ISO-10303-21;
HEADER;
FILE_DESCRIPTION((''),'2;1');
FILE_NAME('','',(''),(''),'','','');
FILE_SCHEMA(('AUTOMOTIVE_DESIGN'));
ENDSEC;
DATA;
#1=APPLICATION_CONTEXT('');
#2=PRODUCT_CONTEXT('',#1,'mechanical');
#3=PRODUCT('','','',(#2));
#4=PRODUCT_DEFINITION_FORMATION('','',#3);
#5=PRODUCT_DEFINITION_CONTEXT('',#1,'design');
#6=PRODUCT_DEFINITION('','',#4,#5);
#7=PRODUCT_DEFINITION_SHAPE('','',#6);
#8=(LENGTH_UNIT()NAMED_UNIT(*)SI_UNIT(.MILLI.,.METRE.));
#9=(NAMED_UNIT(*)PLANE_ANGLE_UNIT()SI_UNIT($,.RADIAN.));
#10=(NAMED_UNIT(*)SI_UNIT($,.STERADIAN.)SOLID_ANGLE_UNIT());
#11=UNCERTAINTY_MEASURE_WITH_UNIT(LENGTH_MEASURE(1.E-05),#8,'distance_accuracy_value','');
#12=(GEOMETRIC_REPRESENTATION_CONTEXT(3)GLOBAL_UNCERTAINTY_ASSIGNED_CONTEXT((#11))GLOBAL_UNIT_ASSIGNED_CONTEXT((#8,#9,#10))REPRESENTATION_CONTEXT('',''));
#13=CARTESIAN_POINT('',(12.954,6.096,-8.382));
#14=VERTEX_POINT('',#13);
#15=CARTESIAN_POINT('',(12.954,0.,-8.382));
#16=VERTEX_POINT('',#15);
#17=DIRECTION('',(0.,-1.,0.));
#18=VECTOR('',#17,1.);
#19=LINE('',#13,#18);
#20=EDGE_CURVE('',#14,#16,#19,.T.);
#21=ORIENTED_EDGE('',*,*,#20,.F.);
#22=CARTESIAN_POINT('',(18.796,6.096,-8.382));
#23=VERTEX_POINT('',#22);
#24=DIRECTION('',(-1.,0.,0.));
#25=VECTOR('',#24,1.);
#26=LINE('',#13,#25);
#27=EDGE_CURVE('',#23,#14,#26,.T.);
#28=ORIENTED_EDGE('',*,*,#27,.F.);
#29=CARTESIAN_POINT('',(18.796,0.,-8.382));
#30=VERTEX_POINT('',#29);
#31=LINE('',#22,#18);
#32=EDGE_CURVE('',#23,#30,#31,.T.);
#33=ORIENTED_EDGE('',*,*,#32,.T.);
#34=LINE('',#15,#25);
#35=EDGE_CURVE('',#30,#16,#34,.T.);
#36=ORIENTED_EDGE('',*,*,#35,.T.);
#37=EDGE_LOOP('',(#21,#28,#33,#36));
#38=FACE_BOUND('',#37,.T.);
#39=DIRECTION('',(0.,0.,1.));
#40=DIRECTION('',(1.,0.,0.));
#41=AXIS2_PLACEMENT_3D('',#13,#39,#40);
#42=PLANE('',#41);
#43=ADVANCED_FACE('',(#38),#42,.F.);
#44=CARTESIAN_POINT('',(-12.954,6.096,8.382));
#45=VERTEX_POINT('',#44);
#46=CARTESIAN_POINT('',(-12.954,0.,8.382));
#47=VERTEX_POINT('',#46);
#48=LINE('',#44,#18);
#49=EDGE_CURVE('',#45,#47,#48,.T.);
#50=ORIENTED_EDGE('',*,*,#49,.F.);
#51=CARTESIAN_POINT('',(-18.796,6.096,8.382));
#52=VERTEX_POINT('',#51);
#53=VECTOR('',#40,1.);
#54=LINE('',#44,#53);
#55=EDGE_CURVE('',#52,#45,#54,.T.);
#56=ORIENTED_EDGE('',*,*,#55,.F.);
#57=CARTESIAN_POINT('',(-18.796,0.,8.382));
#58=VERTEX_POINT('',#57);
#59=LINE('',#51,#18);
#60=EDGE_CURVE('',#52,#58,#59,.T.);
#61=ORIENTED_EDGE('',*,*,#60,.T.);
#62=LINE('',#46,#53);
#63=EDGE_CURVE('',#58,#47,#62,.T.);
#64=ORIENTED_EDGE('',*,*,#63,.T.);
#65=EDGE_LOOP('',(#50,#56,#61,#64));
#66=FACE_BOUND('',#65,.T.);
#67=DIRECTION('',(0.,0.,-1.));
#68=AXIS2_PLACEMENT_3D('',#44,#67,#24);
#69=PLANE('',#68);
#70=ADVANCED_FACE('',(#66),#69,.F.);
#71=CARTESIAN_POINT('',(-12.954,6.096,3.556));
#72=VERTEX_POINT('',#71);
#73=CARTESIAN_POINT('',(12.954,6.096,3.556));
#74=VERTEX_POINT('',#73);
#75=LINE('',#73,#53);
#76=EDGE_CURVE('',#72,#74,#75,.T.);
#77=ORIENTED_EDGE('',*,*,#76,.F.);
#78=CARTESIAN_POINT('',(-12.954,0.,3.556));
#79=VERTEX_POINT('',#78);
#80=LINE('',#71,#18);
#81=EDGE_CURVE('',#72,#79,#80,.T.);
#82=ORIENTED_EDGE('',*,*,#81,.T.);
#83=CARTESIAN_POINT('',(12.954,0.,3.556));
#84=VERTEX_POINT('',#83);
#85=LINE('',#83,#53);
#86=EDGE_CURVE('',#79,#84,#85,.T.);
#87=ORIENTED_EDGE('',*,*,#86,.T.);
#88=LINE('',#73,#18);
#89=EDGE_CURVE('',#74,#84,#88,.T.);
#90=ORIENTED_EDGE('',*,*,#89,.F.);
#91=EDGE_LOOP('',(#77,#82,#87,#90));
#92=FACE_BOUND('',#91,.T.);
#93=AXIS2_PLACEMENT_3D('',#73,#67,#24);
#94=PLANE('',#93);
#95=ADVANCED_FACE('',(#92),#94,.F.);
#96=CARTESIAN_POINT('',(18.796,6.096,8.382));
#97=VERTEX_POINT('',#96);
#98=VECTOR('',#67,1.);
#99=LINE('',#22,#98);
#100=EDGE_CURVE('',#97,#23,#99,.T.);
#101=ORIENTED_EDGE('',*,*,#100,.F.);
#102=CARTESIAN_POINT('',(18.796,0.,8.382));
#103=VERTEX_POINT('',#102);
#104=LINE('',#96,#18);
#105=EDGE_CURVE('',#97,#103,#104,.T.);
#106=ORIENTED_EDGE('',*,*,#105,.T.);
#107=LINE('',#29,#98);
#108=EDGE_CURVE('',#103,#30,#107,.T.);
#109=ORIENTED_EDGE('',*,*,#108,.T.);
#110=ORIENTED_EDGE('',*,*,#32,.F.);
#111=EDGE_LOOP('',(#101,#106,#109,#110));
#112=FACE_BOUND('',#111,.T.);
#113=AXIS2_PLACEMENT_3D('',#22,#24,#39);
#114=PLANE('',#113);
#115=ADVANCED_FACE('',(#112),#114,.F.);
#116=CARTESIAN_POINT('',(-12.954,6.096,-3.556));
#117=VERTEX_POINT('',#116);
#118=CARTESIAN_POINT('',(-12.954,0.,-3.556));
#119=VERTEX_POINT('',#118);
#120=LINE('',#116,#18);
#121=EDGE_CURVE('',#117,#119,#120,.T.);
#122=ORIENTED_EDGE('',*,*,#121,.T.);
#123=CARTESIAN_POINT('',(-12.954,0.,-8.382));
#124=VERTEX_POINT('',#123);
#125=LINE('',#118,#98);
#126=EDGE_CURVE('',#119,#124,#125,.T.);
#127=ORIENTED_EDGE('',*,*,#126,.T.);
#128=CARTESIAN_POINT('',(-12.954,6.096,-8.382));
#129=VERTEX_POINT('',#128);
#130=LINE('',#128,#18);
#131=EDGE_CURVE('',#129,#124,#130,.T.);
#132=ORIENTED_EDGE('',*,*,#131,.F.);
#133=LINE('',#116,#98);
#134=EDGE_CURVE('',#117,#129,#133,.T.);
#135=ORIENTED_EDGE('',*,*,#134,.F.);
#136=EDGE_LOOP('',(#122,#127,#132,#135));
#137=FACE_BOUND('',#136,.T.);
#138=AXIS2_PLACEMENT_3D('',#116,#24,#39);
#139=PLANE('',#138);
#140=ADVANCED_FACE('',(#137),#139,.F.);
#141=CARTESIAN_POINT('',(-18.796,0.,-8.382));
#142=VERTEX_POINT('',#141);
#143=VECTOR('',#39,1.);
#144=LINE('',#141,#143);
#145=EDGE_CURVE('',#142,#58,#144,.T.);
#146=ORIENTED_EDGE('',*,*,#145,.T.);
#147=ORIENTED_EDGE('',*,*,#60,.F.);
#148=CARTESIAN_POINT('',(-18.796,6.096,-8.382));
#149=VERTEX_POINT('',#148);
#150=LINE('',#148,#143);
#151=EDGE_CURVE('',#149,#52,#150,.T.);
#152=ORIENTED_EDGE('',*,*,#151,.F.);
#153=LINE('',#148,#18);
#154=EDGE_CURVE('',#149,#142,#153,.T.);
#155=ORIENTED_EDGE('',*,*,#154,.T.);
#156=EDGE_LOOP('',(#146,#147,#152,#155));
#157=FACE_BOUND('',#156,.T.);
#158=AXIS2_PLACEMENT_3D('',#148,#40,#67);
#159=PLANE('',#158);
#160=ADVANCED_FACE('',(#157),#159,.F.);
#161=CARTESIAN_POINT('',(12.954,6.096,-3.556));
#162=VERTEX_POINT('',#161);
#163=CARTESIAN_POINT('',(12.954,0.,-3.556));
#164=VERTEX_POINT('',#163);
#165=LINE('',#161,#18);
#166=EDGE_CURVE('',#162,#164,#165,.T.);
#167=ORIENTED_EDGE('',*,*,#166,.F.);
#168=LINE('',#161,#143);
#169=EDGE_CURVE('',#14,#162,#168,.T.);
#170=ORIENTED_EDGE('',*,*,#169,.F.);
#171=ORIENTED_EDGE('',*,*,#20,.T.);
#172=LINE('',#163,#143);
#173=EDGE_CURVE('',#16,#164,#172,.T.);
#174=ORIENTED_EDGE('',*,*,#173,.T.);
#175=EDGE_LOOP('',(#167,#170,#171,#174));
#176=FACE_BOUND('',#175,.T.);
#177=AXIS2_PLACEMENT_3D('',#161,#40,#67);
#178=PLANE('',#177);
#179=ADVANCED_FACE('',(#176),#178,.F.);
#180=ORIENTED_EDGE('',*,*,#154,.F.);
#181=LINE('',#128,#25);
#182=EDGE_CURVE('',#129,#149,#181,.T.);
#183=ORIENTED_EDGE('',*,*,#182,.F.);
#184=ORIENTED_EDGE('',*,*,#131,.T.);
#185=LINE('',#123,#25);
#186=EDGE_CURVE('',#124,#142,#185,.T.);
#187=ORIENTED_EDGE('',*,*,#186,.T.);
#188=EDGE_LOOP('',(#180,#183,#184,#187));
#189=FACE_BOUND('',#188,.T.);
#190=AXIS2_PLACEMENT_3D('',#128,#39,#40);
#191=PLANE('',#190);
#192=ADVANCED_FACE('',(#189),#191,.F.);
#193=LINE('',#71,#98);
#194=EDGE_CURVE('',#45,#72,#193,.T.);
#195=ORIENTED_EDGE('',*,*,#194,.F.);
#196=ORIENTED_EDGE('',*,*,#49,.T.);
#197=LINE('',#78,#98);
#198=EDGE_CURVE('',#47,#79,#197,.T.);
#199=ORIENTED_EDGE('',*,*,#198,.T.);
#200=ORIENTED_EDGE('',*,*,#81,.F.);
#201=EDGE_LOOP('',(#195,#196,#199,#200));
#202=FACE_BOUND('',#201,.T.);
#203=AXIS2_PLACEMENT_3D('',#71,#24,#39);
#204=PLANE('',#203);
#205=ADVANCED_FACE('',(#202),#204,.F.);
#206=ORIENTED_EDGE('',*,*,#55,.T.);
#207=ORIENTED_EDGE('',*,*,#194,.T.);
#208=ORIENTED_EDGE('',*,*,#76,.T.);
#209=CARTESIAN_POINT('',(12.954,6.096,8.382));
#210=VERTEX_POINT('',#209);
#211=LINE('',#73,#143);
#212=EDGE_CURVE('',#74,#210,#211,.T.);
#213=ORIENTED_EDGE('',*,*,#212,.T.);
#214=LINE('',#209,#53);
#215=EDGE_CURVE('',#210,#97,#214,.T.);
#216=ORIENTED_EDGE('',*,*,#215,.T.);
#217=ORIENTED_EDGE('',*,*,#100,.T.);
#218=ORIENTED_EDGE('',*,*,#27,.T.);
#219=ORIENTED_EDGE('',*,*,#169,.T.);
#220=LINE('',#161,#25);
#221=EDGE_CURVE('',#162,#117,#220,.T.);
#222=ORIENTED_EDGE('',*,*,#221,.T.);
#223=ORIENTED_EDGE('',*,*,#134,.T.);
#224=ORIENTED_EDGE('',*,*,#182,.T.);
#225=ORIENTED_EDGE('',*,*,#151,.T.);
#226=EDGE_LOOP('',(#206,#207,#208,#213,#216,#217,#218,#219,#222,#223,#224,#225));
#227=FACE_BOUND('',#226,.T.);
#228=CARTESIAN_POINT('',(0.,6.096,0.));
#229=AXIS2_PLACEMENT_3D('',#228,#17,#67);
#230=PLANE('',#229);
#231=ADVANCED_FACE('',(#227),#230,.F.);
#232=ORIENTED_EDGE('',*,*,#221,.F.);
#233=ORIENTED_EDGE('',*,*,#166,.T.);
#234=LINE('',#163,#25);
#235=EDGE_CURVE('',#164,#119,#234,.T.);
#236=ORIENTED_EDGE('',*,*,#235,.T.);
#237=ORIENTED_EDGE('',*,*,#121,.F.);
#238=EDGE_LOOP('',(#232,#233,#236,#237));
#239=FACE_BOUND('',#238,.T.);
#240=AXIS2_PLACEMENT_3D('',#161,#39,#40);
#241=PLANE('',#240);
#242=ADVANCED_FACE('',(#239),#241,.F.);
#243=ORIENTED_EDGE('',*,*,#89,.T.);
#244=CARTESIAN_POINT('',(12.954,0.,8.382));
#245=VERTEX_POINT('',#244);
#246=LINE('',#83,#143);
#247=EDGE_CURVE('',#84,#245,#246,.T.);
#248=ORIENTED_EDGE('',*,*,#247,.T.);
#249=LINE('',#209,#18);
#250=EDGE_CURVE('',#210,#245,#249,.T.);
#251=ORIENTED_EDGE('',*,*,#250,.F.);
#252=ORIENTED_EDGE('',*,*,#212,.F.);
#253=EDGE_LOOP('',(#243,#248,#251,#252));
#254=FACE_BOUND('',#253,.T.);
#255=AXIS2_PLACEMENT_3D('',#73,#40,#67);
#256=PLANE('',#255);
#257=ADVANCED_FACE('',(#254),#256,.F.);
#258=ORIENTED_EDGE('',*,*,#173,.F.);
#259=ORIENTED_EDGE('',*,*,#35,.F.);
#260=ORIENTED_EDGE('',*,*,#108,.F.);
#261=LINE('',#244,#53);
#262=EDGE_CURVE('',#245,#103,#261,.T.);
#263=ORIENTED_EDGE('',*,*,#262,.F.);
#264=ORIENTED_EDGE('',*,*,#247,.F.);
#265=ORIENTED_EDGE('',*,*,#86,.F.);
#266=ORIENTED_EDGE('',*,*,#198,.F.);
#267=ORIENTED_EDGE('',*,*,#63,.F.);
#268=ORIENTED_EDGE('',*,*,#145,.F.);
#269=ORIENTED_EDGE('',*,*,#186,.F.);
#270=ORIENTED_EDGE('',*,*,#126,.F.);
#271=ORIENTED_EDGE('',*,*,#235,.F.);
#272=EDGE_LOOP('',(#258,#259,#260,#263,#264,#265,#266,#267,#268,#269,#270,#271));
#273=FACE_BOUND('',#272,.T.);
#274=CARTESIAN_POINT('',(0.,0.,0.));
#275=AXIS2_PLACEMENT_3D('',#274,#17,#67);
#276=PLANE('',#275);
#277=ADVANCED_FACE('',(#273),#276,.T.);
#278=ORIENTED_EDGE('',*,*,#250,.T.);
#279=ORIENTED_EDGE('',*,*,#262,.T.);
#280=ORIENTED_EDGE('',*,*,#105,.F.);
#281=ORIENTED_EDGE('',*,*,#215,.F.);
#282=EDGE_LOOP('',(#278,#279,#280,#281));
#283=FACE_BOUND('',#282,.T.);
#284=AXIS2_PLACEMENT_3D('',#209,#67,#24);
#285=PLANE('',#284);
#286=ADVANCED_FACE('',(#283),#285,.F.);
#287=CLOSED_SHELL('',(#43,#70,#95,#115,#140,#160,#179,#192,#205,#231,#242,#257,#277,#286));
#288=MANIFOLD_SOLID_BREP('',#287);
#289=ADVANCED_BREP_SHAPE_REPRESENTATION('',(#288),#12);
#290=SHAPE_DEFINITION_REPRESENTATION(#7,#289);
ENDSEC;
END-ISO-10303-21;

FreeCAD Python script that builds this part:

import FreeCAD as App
import Part
import Sketcher
from FreeCAD import Vector
Q = App.Units.Quantity

doc = App.newDocument("Part")
body = doc.addObject("PartDesign::Body", "Body")

sketch1 = body.newObject("Sketcher::SketchObject", "Sketch")
sketch1.AttachmentSupport = (doc.getObject("XZ_Plane"), [""])
sketch1.MapMode = "FlatFace"
sketch1.addGeometry([
    Part.LineSegment(Vector(13, -3.6, 0), Vector(-13, -3.6, 0)),
    Part.LineSegment(Vector(-13, -3.6, 0), Vector(-13, -8.4, 0)),
    Part.LineSegment(Vector(-13, -8.4, 0), Vector(-18.8, -8.4, 0)),
    Part.LineSegment(Vector(-18.8, -8.4, 0), Vector(-18.8, 8.4, 0)),
    Part.LineSegment(Vector(-18.8, 8.4, 0), Vector(-13, 8.4, 0)),
    Part.LineSegment(Vector(-13, 8.4, 0), Vector(-13, 3.6, 0)),
    Part.LineSegment(Vector(-13, 3.6, 0), Vector(13, 3.6, 0)),
    Part.LineSegment(Vector(13, 3.6, 0), Vector(13, 8.4, 0)),
    Part.LineSegment(Vector(13, 8.4, 0), Vector(18.8, 8.4, 0)),
    Part.LineSegment(Vector(18.8, 8.4, 0), Vector(18.8, -8.4, 0)),
    Part.LineSegment(Vector(18.8, -8.4, 0), Vector(13, -8.4, 0)),
    Part.LineSegment(Vector(13, -8.4, 0), Vector(13, -3.6, 0)),
], False)
sketch1.addConstraint([
    Sketcher.Constraint("Coincident", 0, 2, 1, 1),
    Sketcher.Constraint("Coincident", 1, 2, 2, 1),
    Sketcher.Constraint("Coincident", 2, 2, 3, 1),
    Sketcher.Constraint("Coincident", 3, 2, 4, 1),
    Sketcher.Constraint("Coincident", 4, 2, 5, 1),
    Sketcher.Constraint("Coincident", 5, 2, 6, 1),
    Sketcher.Constraint("Coincident", 6, 2, 7, 1),
    Sketcher.Constraint("Coincident", 7, 2, 8, 1),
    Sketcher.Constraint("Coincident", 8, 2, 9, 1),
    Sketcher.Constraint("Coincident", 9, 2, 10, 1),
    Sketcher.Constraint("Coincident", 10, 2, 11, 1),
    Sketcher.Constraint("Coincident", 11, 2, 0, 1),
    Sketcher.Constraint("Horizontal", 0),
    Sketcher.Constraint("Vertical", 1),
    Sketcher.Constraint("Horizontal", 2),
    Sketcher.Constraint("Vertical", 3),
    Sketcher.Constraint("Horizontal", 4),
    Sketcher.Constraint("Vertical", 5),
    Sketcher.Constraint("Horizontal", 6),
    Sketcher.Constraint("Vertical", 7),
    Sketcher.Constraint("Horizontal", 8),
    Sketcher.Constraint("Vertical", 9),
    Sketcher.Constraint("Horizontal", 10),
    Sketcher.Constraint("Vertical", 11),
    Sketcher.Constraint("Symmetric", 0, 2, 6, 2, -1, 1),
    Sketcher.Constraint("Symmetric", 2, 2, 8, 2, -1, 1),
    Sketcher.Constraint("Symmetric", 4, 2, 10, 2, -1, 1),
    Sketcher.Constraint("Symmetric", 4, 2, 7, 2, -2),
    Sketcher.Constraint("DistanceX", 0, 2, 0, 1, Q("1.02 in")),
    Sketcher.Constraint("DistanceX", 2, 2, 2, 1, Q("0.23 in")),
    Sketcher.Constraint("DistanceY", 1, 2, 1, 1, Q("0.19 in")),
    Sketcher.Constraint("DistanceY", 3, 1, 3, 2, Q("0.66 in")),
])
pad1 = body.newObject("PartDesign::Pad", "Pad")
pad1.Profile = sketch1
pad1.Length = Q("0.24 in")
pad1.Reversed = True

doc.recompute()
